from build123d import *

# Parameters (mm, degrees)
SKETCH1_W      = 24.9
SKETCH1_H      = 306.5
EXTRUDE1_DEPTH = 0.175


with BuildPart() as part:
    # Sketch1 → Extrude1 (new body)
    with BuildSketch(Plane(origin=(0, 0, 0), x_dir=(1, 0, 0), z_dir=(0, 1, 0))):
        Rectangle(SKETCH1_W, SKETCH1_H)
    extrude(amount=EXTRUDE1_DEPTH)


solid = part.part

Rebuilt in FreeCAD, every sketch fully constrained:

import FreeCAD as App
import Part
import Sketcher
Q = App.Units.Quantity

doc = App.newDocument("Part")
params = doc.addObject("Spreadsheet::Sheet", "Params")
for row, (alias, value) in enumerate([
    ("sketch1_width", "24.9 mm"),
    ("sketch1_height", "306.5 mm"),
    ("pad1_length", "0.175 mm"),
], start=1):
    params.set(f"A{row}", alias)
    params.set(f"B{row}", "=" + value)
    params.setAlias(f"B{row}", alias)

body = doc.addObject("PartDesign::Body", "Body")

# Sketch on XZ plane
sketch1 = body.newObject("Sketcher::SketchObject", "Sketch")
sketch1.AttachmentSupport = (doc.getObject("XZ_Plane"), [""])
sketch1.MapMode = "FlatFace"
sketch1.addGeometry(Part.LineSegment(App.Vector(-12, -153, 0), App.Vector(-12, 153, 0)), False)
sketch1.addGeometry(Part.LineSegment(App.Vector(-12, 153, 0), App.Vector(12, 153, 0)), False)
sketch1.addGeometry(Part.LineSegment(App.Vector(12, 153, 0), App.Vector(12, -153, 0)), False)
sketch1.addGeometry(Part.LineSegment(App.Vector(12, -153, 0), App.Vector(-12, -153, 0)), False)
sketch1.addConstraint(Sketcher.Constraint("Coincident", 0, 2, 1, 1))
sketch1.addConstraint(Sketcher.Constraint("Coincident", 1, 2, 2, 1))
sketch1.addConstraint(Sketcher.Constraint("Coincident", 2, 2, 3, 1))
sketch1.addConstraint(Sketcher.Constraint("Coincident", 3, 2, 0, 1))
sketch1.addConstraint(Sketcher.Constraint("Vertical", 0))
sketch1.addConstraint(Sketcher.Constraint("Horizontal", 1))
sketch1.addConstraint(Sketcher.Constraint("Vertical", 2))
sketch1.addConstraint(Sketcher.Constraint("Horizontal", 3))
sketch1.addConstraint(Sketcher.Constraint("Symmetric", 0, 2, 2, 2, -1, 1))
sketch1.addConstraint(Sketcher.Constraint("DistanceX", 1, 1, 1, 2, Q("24.9 mm")))
sketch1.addConstraint(Sketcher.Constraint("DistanceY", 0, 1, 0, 2, Q("306.5 mm")))
sketch1.setExpression("Constraints[9]", "Params.sketch1_width")
sketch1.setExpression("Constraints[10]", "Params.sketch1_height")
pad1 = body.newObject("PartDesign::Pad", "Pad")
pad1.Profile = sketch1
pad1.setExpression("Length", "Params.pad1_length")
pad1.Reversed = True

doc.recompute()
